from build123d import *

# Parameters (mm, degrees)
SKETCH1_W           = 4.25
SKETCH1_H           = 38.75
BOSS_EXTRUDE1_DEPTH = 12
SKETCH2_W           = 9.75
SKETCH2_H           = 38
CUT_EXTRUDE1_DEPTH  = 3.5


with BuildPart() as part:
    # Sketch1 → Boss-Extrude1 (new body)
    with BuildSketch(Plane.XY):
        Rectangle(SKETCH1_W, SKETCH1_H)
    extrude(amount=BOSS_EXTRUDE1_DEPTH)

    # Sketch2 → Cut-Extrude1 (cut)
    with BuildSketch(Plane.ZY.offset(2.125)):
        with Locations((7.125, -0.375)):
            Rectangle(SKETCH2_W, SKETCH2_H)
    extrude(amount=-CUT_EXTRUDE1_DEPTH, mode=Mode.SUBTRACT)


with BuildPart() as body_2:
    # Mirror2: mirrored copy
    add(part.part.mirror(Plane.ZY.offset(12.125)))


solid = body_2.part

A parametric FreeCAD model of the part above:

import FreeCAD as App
import Part
import Sketcher
Q = App.Units.Quantity


def add_polygon(sketch, points):
    """Adds a closed chain of lines whose ends are joined by coincident constraints."""
    first, n = sketch.GeometryCount, len(points)
    for a, b in zip(points, points[1:] + points[:1]):
        sketch.addGeometry(Part.LineSegment(App.Vector(*a, 0), App.Vector(*b, 0)), False)
    for i in range(n):
        sketch.addConstraint(Sketcher.Constraint("Coincident", first + i, 2, first + (i + 1) % n, 1))

doc = App.newDocument("Part")
body = doc.addObject("PartDesign::Body", "Body")

sketch1 = doc.addObject("Sketcher::SketchObject", "Sketch")
body.addObject(sketch1)
sketch1.AttachmentSupport = (doc.XY_Plane, [""])
sketch1.MapMode = "FlatFace"
add_polygon(sketch1, [(-2.1, 19.4), (-2.1, -19.4), (2.1, -19.4), (2.1, 19.4)])
sketch1.addConstraint([
    Sketcher.Constraint("Vertical", 0),
    Sketcher.Constraint("Horizontal", 1),
    Sketcher.Constraint("Vertical", 2),
    Sketcher.Constraint("Horizontal", 3),
    Sketcher.Constraint("Symmetric", 0, 2, 2, 2, -1, 1),
    Sketcher.Constraint("DistanceX", 1, 1, 1, 2, Q("4.25 mm")),
    Sketcher.Constraint("DistanceY", 0, 2, 0, 1, Q("38.75 mm")),
])
pad1 = doc.addObject("PartDesign::Pad", "Pad")
body.addObject(pad1)
pad1.Profile = sketch1
pad1.Length = 12

sketch2 = doc.addObject("Sketcher::SketchObject", "Sketch001")
body.addObject(sketch2)
sketch2.AttachmentSupport = (doc.YZ_Plane, [""])
sketch2.MapMode = "FlatFace"
sketch2.AttachmentOffset = App.Placement(App.Vector(0, 0, -2.125), App.Rotation())
add_polygon(sketch2, [(19, 2), (-19, 2), (-19, 12), (19, 12)])
sketch2.addConstraint([
    Sketcher.Constraint("Horizontal", 0),
    Sketcher.Constraint("Vertical", 1),
    Sketcher.Constraint("Horizontal", 2),
    Sketcher.Constraint("Vertical", 3),
    Sketcher.Constraint("DistanceX", 0, 2, 0, 1, Q("38 mm")),
    Sketcher.Constraint("DistanceY", -1, 1, 1, 2, Q("12 mm")),
    Sketcher.Constraint("DistanceY", 1, 1, 1, 2, Q("9.75 mm")),
    Sketcher.Constraint("DistanceX", 0, 2, -1, 1, Q("19.375 mm")),
])
pocket1 = doc.addObject("PartDesign::Pocket", "Pocket")
body.addObject(pocket1)
pocket1.Profile = sketch2
pocket1.Length = 3.5
pocket1.Reversed = True
body2 = doc.addObject("PartDesign::Body", "Body001")
doc.recompute()

mirroring = doc.addObject("Part::Mirroring", "Mirroring")
mirroring.Source = body
mirroring.Base = App.Vector(-12.125, 0, 0)
mirroring.Normal = App.Vector(-1, 0, 0)
body2.BaseFeature = mirroring
doc.recompute()
body.Visibility = False
mirroring.Visibility = False

doc.recompute()
